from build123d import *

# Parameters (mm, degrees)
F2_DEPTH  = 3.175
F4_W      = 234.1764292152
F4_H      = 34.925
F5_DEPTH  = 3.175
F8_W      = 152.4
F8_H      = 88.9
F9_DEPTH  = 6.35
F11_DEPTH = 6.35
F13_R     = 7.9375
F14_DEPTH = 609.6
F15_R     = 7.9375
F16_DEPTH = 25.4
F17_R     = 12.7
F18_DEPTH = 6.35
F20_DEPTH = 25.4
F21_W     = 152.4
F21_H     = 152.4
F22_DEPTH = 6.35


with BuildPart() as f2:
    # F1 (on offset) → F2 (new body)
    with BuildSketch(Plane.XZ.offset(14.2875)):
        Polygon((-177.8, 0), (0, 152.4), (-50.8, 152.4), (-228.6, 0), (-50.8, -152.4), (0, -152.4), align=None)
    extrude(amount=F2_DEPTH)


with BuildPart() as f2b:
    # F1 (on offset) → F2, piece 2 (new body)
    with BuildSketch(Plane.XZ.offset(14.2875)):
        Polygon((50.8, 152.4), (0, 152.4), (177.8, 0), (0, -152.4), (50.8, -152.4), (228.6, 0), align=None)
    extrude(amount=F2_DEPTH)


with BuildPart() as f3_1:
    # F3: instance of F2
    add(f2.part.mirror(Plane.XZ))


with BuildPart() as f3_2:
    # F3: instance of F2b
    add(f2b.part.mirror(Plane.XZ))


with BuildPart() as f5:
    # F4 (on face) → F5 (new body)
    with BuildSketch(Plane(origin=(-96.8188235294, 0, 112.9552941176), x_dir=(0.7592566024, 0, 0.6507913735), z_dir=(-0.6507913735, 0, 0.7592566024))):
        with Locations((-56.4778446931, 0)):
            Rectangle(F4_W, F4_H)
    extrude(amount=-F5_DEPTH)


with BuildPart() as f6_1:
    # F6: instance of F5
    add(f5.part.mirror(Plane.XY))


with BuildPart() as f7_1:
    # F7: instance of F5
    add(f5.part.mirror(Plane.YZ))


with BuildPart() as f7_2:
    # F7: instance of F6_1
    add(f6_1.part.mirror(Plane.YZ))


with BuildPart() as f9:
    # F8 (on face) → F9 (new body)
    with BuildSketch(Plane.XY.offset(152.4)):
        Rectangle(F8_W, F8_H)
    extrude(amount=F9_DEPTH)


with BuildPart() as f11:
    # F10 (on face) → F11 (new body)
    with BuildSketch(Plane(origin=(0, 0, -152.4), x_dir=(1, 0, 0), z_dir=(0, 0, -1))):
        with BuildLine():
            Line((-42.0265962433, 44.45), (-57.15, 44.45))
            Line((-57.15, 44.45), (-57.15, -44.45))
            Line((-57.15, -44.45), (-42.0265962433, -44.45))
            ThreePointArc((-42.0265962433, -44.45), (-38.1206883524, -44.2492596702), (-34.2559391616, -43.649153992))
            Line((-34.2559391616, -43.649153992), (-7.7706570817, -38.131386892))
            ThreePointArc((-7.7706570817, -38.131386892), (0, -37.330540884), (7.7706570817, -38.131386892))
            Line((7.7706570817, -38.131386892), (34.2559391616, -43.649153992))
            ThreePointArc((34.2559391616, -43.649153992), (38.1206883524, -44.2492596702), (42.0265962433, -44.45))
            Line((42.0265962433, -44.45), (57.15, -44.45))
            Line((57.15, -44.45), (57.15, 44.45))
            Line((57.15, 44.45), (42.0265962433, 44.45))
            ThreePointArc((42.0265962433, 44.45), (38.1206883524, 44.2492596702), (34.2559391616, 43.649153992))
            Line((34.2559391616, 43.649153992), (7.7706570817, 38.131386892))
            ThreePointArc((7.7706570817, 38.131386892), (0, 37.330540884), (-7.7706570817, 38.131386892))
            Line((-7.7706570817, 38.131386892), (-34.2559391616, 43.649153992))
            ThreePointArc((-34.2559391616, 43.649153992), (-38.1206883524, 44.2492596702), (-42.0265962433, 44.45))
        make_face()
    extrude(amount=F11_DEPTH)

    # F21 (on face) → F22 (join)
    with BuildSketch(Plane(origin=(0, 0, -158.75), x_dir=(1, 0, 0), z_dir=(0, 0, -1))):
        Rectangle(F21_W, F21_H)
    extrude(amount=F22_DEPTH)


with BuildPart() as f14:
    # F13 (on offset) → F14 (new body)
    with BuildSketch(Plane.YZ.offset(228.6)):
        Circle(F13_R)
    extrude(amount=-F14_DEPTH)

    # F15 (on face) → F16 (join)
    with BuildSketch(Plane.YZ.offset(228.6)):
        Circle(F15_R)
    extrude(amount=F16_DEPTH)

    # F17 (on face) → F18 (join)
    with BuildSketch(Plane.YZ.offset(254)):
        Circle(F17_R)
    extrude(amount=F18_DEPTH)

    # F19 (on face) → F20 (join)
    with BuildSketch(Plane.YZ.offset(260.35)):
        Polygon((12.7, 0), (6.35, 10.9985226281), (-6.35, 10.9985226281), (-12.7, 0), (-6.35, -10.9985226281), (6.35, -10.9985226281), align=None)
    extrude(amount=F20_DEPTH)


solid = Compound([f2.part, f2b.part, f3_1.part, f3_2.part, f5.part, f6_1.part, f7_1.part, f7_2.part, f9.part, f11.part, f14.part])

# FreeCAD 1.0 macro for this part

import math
import FreeCAD as App
import Part
import Sketcher

V = App.Vector
Q = App.Units.Quantity

doc = App.newDocument("Part")
params = doc.addObject("Spreadsheet::Sheet", "Params")
for row, (alias, value) in enumerate([
    ("sketch1_width", "2 in"),
    ("pad1_length", "0.125 in"),
    ("sketch2_width", "2 in"),
    ("pad2_length", "0.125 in"),
    ("sketch3_height", "1.375 in"),
    ("pad3_length", "0.125 in"),
    ("sketch4_width", "6 in"),
    ("sketch4_height", "3.5 in"),
    ("pad4_length", "0.25 in"),
    ("sketch5_radius", "1.5 in"),
    ("sketch5_height", "3.5 in"),
    ("pad5_length", "0.25 in"),
    ("sketch6_width", "6 in"),
    ("pad6_length", "0.25 in"),
    ("sketch7_diameter", "0.625 in"),
    ("pad7_length", "24 in"),
    ("sketch8_diameter", "0.625 in"),
    ("pad8_length", "1 in"),
    ("sketch9_diameter", "1 in"),
    ("pad9_length", "0.25 in"),
    ("sketch10_width", "0.5 in"),
    ("pad10_length", "1 in"),
], start=1):
    params.set(f"A{row}", alias)
    params.set(f"B{row}", "=" + value)
    params.setAlias(f"B{row}", alias)

body = doc.addObject("PartDesign::Body", "Body")

# Sketch on XZ plane
sketch1 = doc.addObject("Sketcher::SketchObject", "Sketch")
body.addObject(sketch1)
sketch1.AttachmentSupport = (doc.XZ_Plane, [""])
sketch1.MapMode = "FlatFace"
sketch1.AttachmentOffset = App.Placement(V(0, 0, 0.5625 * 25.4), App.Rotation())
sketch1.addGeometry([
    Part.LineSegment(V(-177.8, 0, 0), V(0, 152.4, 0)),  # 0
    Part.LineSegment(V(0, 152.4, 0), V(-50.8, 152.4, 0)),  # 1
    Part.LineSegment(V(-50.8, 152.4, 0), V(-228.6, 0, 0)),  # 2
    Part.LineSegment(V(-228.6, 0, 0), V(-50.8, -152.4, 0)),  # 3
    Part.LineSegment(V(-50.8, -152.4, 0), V(0, -152.4, 0)),  # 4
    Part.LineSegment(V(0, -152.4, 0), V(-177.8, 0, 0)),  # 5
], False)
sketch1.addConstraint([
    Sketcher.Constraint("Coincident", 0, 2, 1, 1),
    Sketcher.Constraint("Coincident", 1, 2, 2, 1),
    Sketcher.Constraint("Coincident", 2, 2, 3, 1),
    Sketcher.Constraint("Coincident", 3, 2, 4, 1),
    Sketcher.Constraint("Coincident", 4, 2, 5, 1),
    Sketcher.Constraint("Coincident", 5, 2, 0, 1),
    Sketcher.Constraint("Horizontal", 1),
    Sketcher.Constraint("Horizontal", 4),
    Sketcher.Constraint("Symmetric", 0, 2, 4, 2, -1, 1),
    Sketcher.Constraint("PointOnObject", 0, 2, -2),
    Sketcher.Constraint("PointOnObject", 2, 2, -1),
    Sketcher.Constraint("PointOnObject", 5, 2, -1),
    Sketcher.Constraint("Parallel", 0, 2),
    Sketcher.Constraint("Parallel", 3, 5),
    Sketcher.Constraint("DistanceX", 1, 2, 1, 1, Q("2 in")),
    Sketcher.Constraint("DistanceY", -1, 1, 0, 2, Q("6 in")),
    Sketcher.Constraint("DistanceX", 2, 2, -1, 1, Q("9 in")),
])
sketch1.setExpression("Constraints[14]", "Params.sketch1_width")
pad1 = doc.addObject("PartDesign::Pad", "Pad")
body.addObject(pad1)
pad1.Profile = sketch1
pad1.setExpression("Length", "Params.pad1_length")
body2 = doc.addObject("PartDesign::Body", "Body001")

# Sketch on XZ plane
sketch2 = doc.addObject("Sketcher::SketchObject", "Sketch001")
body2.addObject(sketch2)
sketch2.AttachmentSupport = (doc.getObject("XZ_Plane001"), [""])
sketch2.MapMode = "FlatFace"
sketch2.AttachmentOffset = App.Placement(V(0, 0, 0.5625 * 25.4), App.Rotation())
sketch2.addGeometry([
    Part.LineSegment(V(50.8, 152.4, 0), V(0, 152.4, 0)),  # 0
    Part.LineSegment(V(0, 152.4, 0), V(177.8, 0, 0)),  # 1
    Part.LineSegment(V(177.8, 0, 0), V(0, -152.4, 0)),  # 2
    Part.LineSegment(V(0, -152.4, 0), V(50.8, -152.4, 0)),  # 3
    Part.LineSegment(V(50.8, -152.4, 0), V(228.6, 0, 0)),  # 4
    Part.LineSegment(V(228.6, 0, 0), V(50.8, 152.4, 0)),  # 5
], False)
sketch2.addConstraint([
    Sketcher.Constraint("Coincident", 0, 2, 1, 1),
    Sketcher.Constraint("Coincident", 1, 2, 2, 1),
    Sketcher.Constraint("Coincident", 2, 2, 3, 1),
    Sketcher.Constraint("Coincident", 3, 2, 4, 1),
    Sketcher.Constraint("Coincident", 4, 2, 5, 1),
    Sketcher.Constraint("Coincident", 5, 2, 0, 1),
    Sketcher.Constraint("Horizontal", 0),
    Sketcher.Constraint("Horizontal", 3),
    Sketcher.Constraint("Symmetric", 0, 2, 2, 2, -1, 1),
    Sketcher.Constraint("PointOnObject", 0, 2, -2),
    Sketcher.Constraint("PointOnObject", 1, 2, -1),
    Sketcher.Constraint("PointOnObject", 4, 2, -1),
    Sketcher.Constraint("Parallel", 2, 4),
    Sketcher.Constraint("Parallel", 1, 5),
    Sketcher.Constraint("DistanceX", 0, 2, 0, 1, Q("2 in")),
    Sketcher.Constraint("DistanceY", -1, 1, 0, 2, Q("6 in")),
    Sketcher.Constraint("DistanceX", -1, 1, 1, 2, Q("7 in")),
])
sketch2.setExpression("Constraints[14]", "Params.sketch2_width")
pad2 = doc.addObject("PartDesign::Pad", "Pad001")
body2.addObject(pad2)
pad2.Profile = sketch2
pad2.setExpression("Length", "Params.pad2_length")
body3 = doc.addObject("PartDesign::Body", "Body002")
doc.recompute()

mirroring = doc.addObject("Part::Mirroring", "Mirroring")
mirroring.Source = body
mirroring.Base = V(0, 0, 0)
mirroring.Normal = V(0, -1, 0)
body3.BaseFeature = mirroring
doc.recompute()
body4 = doc.addObject("PartDesign::Body", "Body003")
doc.recompute()

mirroring2 = doc.addObject("Part::Mirroring", "Mirroring001")
mirroring2.Source = body2
mirroring2.Base = V(0, 0, 0)
mirroring2.Normal = V(0, -1, 0)
body4.BaseFeature = mirroring2
doc.recompute()
body5 = doc.addObject("PartDesign::Body", "Body004")

# Sketch on an angled plane
sketch3 = doc.addObject("Sketcher::SketchObject", "Sketch002")
body5.addObject(sketch3)
sketch3.Placement = App.Placement(V(-96.818824, 0, 112.955294), App.Rotation(V(0.759256602, 0, 0.650791373), V(0, 0.999999999, 0), V(-0.650791373, 0, 0.759256602), "ZXY"))
sketch3.addGeometry([
    Part.LineSegment(V(-173.566059, 17.4625, 0), V(-173.566059, -17.4625, 0)),
    Part.LineSegment(V(-173.566059, -17.4625, 0), V(60.61037, -17.4625, 0)),
    Part.LineSegment(V(60.61037, -17.4625, 0), V(60.61037, 17.4625, 0)),
    Part.LineSegment(V(60.61037, 17.4625, 0), V(-173.566059, 17.4625, 0)),
], False)
sketch3.addConstraint([
    Sketcher.Constraint("Coincident", 0, 2, 1, 1),
    Sketcher.Constraint("Coincident", 1, 2, 2, 1),
    Sketcher.Constraint("Coincident", 2, 2, 3, 1),
    Sketcher.Constraint("Coincident", 3, 2, 0, 1),
    Sketcher.Constraint("Vertical", 0),
    Sketcher.Constraint("Horizontal", 1),
    Sketcher.Constraint("Vertical", 2),
    Sketcher.Constraint("Horizontal", 3),
    Sketcher.Constraint("DistanceY", 0, 2, 0, 1, Q("1.375 in")),
    Sketcher.Constraint("DistanceY", 0, 2, -1, 1, Q("0.6875 in")),
    Sketcher.Constraint("DistanceX", 1, 1, 1, 2, Q("234.176429 mm")),
    Sketcher.Constraint("DistanceX", 0, 2, -1, 1, Q("173.566059 mm")),
])
sketch3.setExpression("Constraints[8]", "Params.sketch3_height")
pad3 = doc.addObject("PartDesign::Pad", "Pad002")
body5.addObject(pad3)
pad3.Profile = sketch3
pad3.setExpression("Length", "Params.pad3_length")
pad3.Reversed = True
body6 = doc.addObject("PartDesign::Body", "Body005")
doc.recompute()

mirroring3 = doc.addObject("Part::Mirroring", "Mirroring002")
mirroring3.Source = body5
mirroring3.Base = V(0, 0, 0)
mirroring3.Normal = V(0, 0, 1)
body6.BaseFeature = mirroring3
doc.recompute()
body7 = doc.addObject("PartDesign::Body", "Body006")
doc.recompute()

mirroring4 = doc.addObject("Part::Mirroring", "Mirroring003")
mirroring4.Source = body5
mirroring4.Base = V(0, 0, 0)
mirroring4.Normal = V(1, 0, 0)
body7.BaseFeature = mirroring4
doc.recompute()
body8 = doc.addObject("PartDesign::Body", "Body007")
doc.recompute()

mirroring5 = doc.addObject("Part::Mirroring", "Mirroring004")
mirroring5.Source = body6
mirroring5.Base = V(0, 0, 0)
mirroring5.Normal = V(1, 0, 0)
body8.BaseFeature = mirroring5
doc.recompute()
body9 = doc.addObject("PartDesign::Body", "Body008")

# Sketch on XY plane
sketch4 = doc.addObject("Sketcher::SketchObject", "Sketch003")
body9.addObject(sketch4)
sketch4.AttachmentSupport = (doc.getObject("XY_Plane008"), [""])
sketch4.MapMode = "FlatFace"
sketch4.AttachmentOffset = App.Placement(V(0, 0, 6 * 25.4), App.Rotation())
sketch4.addGeometry([
    Part.LineSegment(V(-76.2, 44.45, 0), V(-76.2, -44.45, 0)),
    Part.LineSegment(V(-76.2, -44.45, 0), V(76.2, -44.45, 0)),
    Part.LineSegment(V(76.2, -44.45, 0), V(76.2, 44.45, 0)),
    Part.LineSegment(V(76.2, 44.45, 0), V(-76.2, 44.45, 0)),
], False)
sketch4.addConstraint([
    Sketcher.Constraint("Coincident", 0, 2, 1, 1),
    Sketcher.Constraint("Coincident", 1, 2, 2, 1),
    Sketcher.Constraint("Coincident", 2, 2, 3, 1),
    Sketcher.Constraint("Coincident", 3, 2, 0, 1),
    Sketcher.Constraint("Vertical", 0),
    Sketcher.Constraint("Horizontal", 1),
    Sketcher.Constraint("Vertical", 2),
    Sketcher.Constraint("Horizontal", 3),
    Sketcher.Constraint("Symmetric", 0, 2, 2, 2, -1, 1),
    Sketcher.Constraint("DistanceX", 1, 1, 1, 2, Q("6 in")),
    Sketcher.Constraint("DistanceY", 0, 2, 0, 1, Q("3.5 in")),
])
sketch4.setExpression("Constraints[9]", "Params.sketch4_width")
sketch4.setExpression("Constraints[10]", "Params.sketch4_height")
pad4 = doc.addObject("PartDesign::Pad", "Pad003")
body9.addObject(pad4)
pad4.Profile = sketch4
pad4.setExpression("Length", "Params.pad4_length")
body10 = doc.addObject("PartDesign::Body", "Body009")

# Sketch on XY plane
sketch5 = doc.addObject("Sketcher::SketchObject", "Sketch004")
body10.addObject(sketch5)
sketch5.AttachmentSupport = (doc.getObject("XY_Plane009"), [""])
sketch5.MapMode = "FlatFace"
sketch5.AttachmentOffset = App.Placement(V(0, 0, -6 * 25.4), App.Rotation())
sketch5.addGeometry([
    Part.LineSegment(V(-42.026596, -44.45, 0), V(-57.15, -44.45, 0)),  # 0
    Part.LineSegment(V(-57.15, -44.45, 0), V(-57.15, 44.45, 0)),  # 1
    Part.LineSegment(V(-57.15, 44.45, 0), V(-42.026596, 44.45, 0)),  # 2
    Part.ArcOfCircle(Part.Circle(V(-42.026596, 6.35, 0), V(0, 0, 1), 38.1), math.radians(78.231711), math.radians(90)),  # 3
    Part.LineSegment(V(-34.255939, 43.649154, 0), V(-7.770657, 38.131387, 0)),  # 4
    Part.ArcOfCircle(Part.Circle(V(0, 75.430541, 0), V(0, 0, 1), 38.1), math.radians(-101.768289), math.radians(-78.231711)),  # 5
    Part.LineSegment(V(7.770657, 38.131387, 0), V(34.255939, 43.649154, 0)),  # 6
    Part.ArcOfCircle(Part.Circle(V(42.026596, 6.35, 0), V(0, 0, 1), 38.1), math.radians(90), math.radians(101.768289)),  # 7
    Part.LineSegment(V(42.026596, 44.45, 0), V(57.15, 44.45, 0)),  # 8
    Part.LineSegment(V(57.15, 44.45, 0), V(57.15, -44.45, 0)),  # 9
    Part.LineSegment(V(57.15, -44.45, 0), V(42.026596, -44.45, 0)),  # 10
    Part.ArcOfCircle(Part.Circle(V(42.026596, -6.35, 0), V(0, 0, 1), 38.1), math.radians(-101.768289), math.radians(-90)),  # 11
    Part.LineSegment(V(34.255939, -43.649154, 0), V(7.770657, -38.131387, 0)),  # 12
    Part.ArcOfCircle(Part.Circle(V(0, -75.430541, 0), V(0, 0, 1), 38.1), math.radians(78.231711), math.radians(101.768289)),  # 13
    Part.LineSegment(V(-7.770657, -38.131387, 0), V(-34.255939, -43.649154, 0)),  # 14
    Part.ArcOfCircle(Part.Circle(V(-42.026596, -6.35, 0), V(0, 0, 1), 38.1), math.radians(-90), math.radians(-78.231711)),  # 15
], False)
sketch5.addConstraint([
    Sketcher.Constraint("Coincident", 0, 2, 1, 1),
    Sketcher.Constraint("Coincident", 1, 2, 2, 1),
    Sketcher.Constraint("Tangent", 2, 2, 3, 2),
    Sketcher.Constraint("Tangent", 3, 1, 4, 1),
    Sketcher.Constraint("Tangent", 4, 2, 5, 1),
    Sketcher.Constraint("Tangent", 5, 2, 6, 1),
    Sketcher.Constraint("Tangent", 6, 2, 7, 2),
    Sketcher.Constraint("Tangent", 7, 1, 8, 1),
    Sketcher.Constraint("Coincident", 8, 2, 9, 1),
    Sketcher.Constraint("Coincident", 9, 2, 10, 1),
    Sketcher.Constraint("Tangent", 10, 2, 11, 2),
    Sketcher.Constraint("Tangent", 11, 1, 12, 1),
    Sketcher.Constraint("Tangent", 12, 2, 13, 1),
    Sketcher.Constraint("Tangent", 13, 2, 14, 1),
    Sketcher.Constraint("Tangent", 14, 2, 15, 2),
    Sketcher.Constraint("Tangent", 15, 1, 0, 1),
    Sketcher.Constraint("Horizontal", 0),
    Sketcher.Constraint("Vertical", 1),
    Sketcher.Constraint("Horizontal", 2),
    Sketcher.Constraint("Horizontal", 8),
    Sketcher.Constraint("Vertical", 9),
    Sketcher.Constraint("Horizontal", 10),
    Sketcher.Constraint("Equal", 3, 5),
    Sketcher.Constraint("Equal", 5, 7),
    Sketcher.Constraint("Equal", 7, 11),
    Sketcher.Constraint("Equal", 11, 13),
    Sketcher.Constraint("Equal", 13, 15),
    Sketcher.Constraint("Symmetric", 3, 3, 11, 3, -1, 1),
    Sketcher.Constraint("Symmetric", 5, 3, 13, 3, -1, 1),
    Sketcher.Constraint("Symmetric", 7, 3, 15, 3, -1, 1),
    Sketcher.Constraint("Symmetric", 3, 3, 7, 3, -2),
    Sketcher.Constraint("PointOnObject", 5, 3, -2),
    Sketcher.Constraint("Equal", 2, 8),
    Sketcher.Constraint("Radius", 3, Q("1.5 in")),
    Sketcher.Constraint("DistanceY", 1, 1, 1, 2, Q("3.5 in")),
    Sketcher.Constraint("DistanceX", 0, 2, -1, 1, Q("2.25 in")),
    Sketcher.Constraint("DistanceX", 0, 2, 0, 1, Q("15.123404 mm")),
    Sketcher.Constraint("DistanceY", -1, 1, 5, 3, Q("75.430541 mm")),
])
sketch5.setExpression("Constraints[33]", "Params.sketch5_radius")
sketch5.setExpression("Constraints[34]", "Params.sketch5_height")
pad5 = doc.addObject("PartDesign::Pad", "Pad004")
body10.addObject(pad5)
pad5.Profile = sketch5
pad5.setExpression("Length", "Params.pad5_length")
pad5.Reversed = True

# Sketch on XY plane
sketch6 = doc.addObject("Sketcher::SketchObject", "Sketch005")
body10.addObject(sketch6)
sketch6.AttachmentSupport = (doc.getObject("XY_Plane009"), [""])
sketch6.MapMode = "FlatFace"
sketch6.AttachmentOffset = App.Placement(V(0, 0, -6.25 * 25.4), App.Rotation())
sketch6.addGeometry([
    Part.LineSegment(V(-76.2, -76.2, 0), V(-76.2, 76.2, 0)),
    Part.LineSegment(V(-76.2, 76.2, 0), V(76.2, 76.2, 0)),
    Part.LineSegment(V(76.2, 76.2, 0), V(76.2, -76.2, 0)),
    Part.LineSegment(V(76.2, -76.2, 0), V(-76.2, -76.2, 0)),
], False)
sketch6.addConstraint([
    Sketcher.Constraint("Coincident", 0, 2, 1, 1),
    Sketcher.Constraint("Coincident", 1, 2, 2, 1),
    Sketcher.Constraint("Coincident", 2, 2, 3, 1),
    Sketcher.Constraint("Coincident", 3, 2, 0, 1),
    Sketcher.Constraint("Vertical", 0),
    Sketcher.Constraint("Horizontal", 1),
    Sketcher.Constraint("Vertical", 2),
    Sketcher.Constraint("Horizontal", 3),
    Sketcher.Constraint("Symmetric", 0, 2, 2, 2, -1, 1),
    Sketcher.Constraint("Equal", 3, 0),
    Sketcher.Constraint("DistanceX", 1, 1, 1, 2, Q("6 in")),
])
sketch6.setExpression("Constraints[10]", "Params.sketch6_width")
pad6 = doc.addObject("PartDesign::Pad", "Pad005")
body10.addObject(pad6)
pad6.Profile = sketch6
pad6.setExpression("Length", "Params.pad6_length")
pad6.Reversed = True
body11 = doc.addObject("PartDesign::Body", "Body010")

# Sketch on YZ plane
sketch7 = doc.addObject("Sketcher::SketchObject", "Sketch006")
body11.addObject(sketch7)
sketch7.AttachmentSupport = (doc.getObject("YZ_Plane010"), [""])
sketch7.MapMode = "FlatFace"
sketch7.AttachmentOffset = App.Placement(V(0, 0, 9 * 25.4), App.Rotation())
sketch7.addGeometry(Part.Circle(V(0, 0, 0), V(0, 0, 1), 7.9375), False)
sketch7.addConstraint([
    Sketcher.Constraint("Coincident", 0, 3, -1, 1),
    Sketcher.Constraint("Diameter", 0, Q("0.625 in")),
])
sketch7.setExpression("Constraints[1]", "Params.sketch7_diameter")
pad7 = doc.addObject("PartDesign::Pad", "Pad006")
body11.addObject(pad7)
pad7.Profile = sketch7
pad7.setExpression("Length", "Params.pad7_length")
pad7.Reversed = True

# Sketch on YZ plane
sketch8 = doc.addObject("Sketcher::SketchObject", "Sketch007")
body11.addObject(sketch8)
sketch8.AttachmentSupport = (doc.getObject("YZ_Plane010"), [""])
sketch8.MapMode = "FlatFace"
sketch8.AttachmentOffset = App.Placement(V(0, 0, 9 * 25.4), App.Rotation())
sketch8.addGeometry(Part.Circle(V(0, 0, 0), V(0, 0, 1), 7.9375), False)
sketch8.addConstraint([
    Sketcher.Constraint("Coincident", 0, 3, -1, 1),
    Sketcher.Constraint("Diameter", 0, Q("0.625 in")),
])
sketch8.setExpression("Constraints[1]", "Params.sketch8_diameter")
pad8 = doc.addObject("PartDesign::Pad", "Pad007")
body11.addObject(pad8)
pad8.Profile = sketch8
pad8.setExpression("Length", "Params.pad8_length")

# Sketch on YZ plane
sketch9 = doc.addObject("Sketcher::SketchObject", "Sketch008")
body11.addObject(sketch9)
sketch9.AttachmentSupport = (doc.getObject("YZ_Plane010"), [""])
sketch9.MapMode = "FlatFace"
sketch9.AttachmentOffset = App.Placement(V(0, 0, 10 * 25.4), App.Rotation())
sketch9.addGeometry(Part.Circle(V(0, 0, 0), V(0, 0, 1), 12.7), False)
sketch9.addConstraint([
    Sketcher.Constraint("Coincident", 0, 3, -1, 1),
    Sketcher.Constraint("Diameter", 0, Q("1 in")),
])
sketch9.setExpression("Constraints[1]", "Params.sketch9_diameter")
pad9 = doc.addObject("PartDesign::Pad", "Pad008")
body11.addObject(pad9)
pad9.Profile = sketch9
pad9.setExpression("Length", "Params.pad9_length")

# Sketch on YZ plane
sketch10 = doc.addObject("Sketcher::SketchObject", "Sketch009")
body11.addObject(sketch10)
sketch10.AttachmentSupport = (doc.getObject("YZ_Plane010"), [""])
sketch10.MapMode = "FlatFace"
sketch10.AttachmentOffset = App.Placement(V(0, 0, 10.25 * 25.4), App.Rotation())
sketch10.addGeometry([
    Part.LineSegment(V(12.7, 0, 0), V(6.35, 10.998523, 0)),  # 0
    Part.LineSegment(V(6.35, 10.998523, 0), V(-6.35, 10.998523, 0)),  # 1
    Part.LineSegment(V(-6.35, 10.998523, 0), V(-12.7, 0, 0)),  # 2
    Part.LineSegment(V(-12.7, 0, 0), V(-6.35, -10.998523, 0)),  # 3
    Part.LineSegment(V(-6.35, -10.998523, 0), V(6.35, -10.998523, 0)),  # 4
    Part.LineSegment(V(6.35, -10.998523, 0), V(12.7, 0, 0)),  # 5
], False)
sketch10.addConstraint([
    Sketcher.Constraint("Coincident", 0, 2, 1, 1),
    Sketcher.Constraint("Coincident", 1, 2, 2, 1),
    Sketcher.Constraint("Coincident", 2, 2, 3, 1),
    Sketcher.Constraint("Coincident", 3, 2, 4, 1),
    Sketcher.Constraint("Coincident", 4, 2, 5, 1),
    Sketcher.Constraint("Coincident", 5, 2, 0, 1),
    Sketcher.Constraint("Horizontal", 1),
    Sketcher.Constraint("Horizontal", 4),
    Sketcher.Constraint("Symmetric", 0, 2, 3, 2, -1, 1),
    Sketcher.Constraint("Symmetric", 2, 2, 5, 2, -1, 1),
    Sketcher.Constraint("PointOnObject", 2, 2, -1),
    Sketcher.Constraint("Parallel", 2, 5),
    Sketcher.Constraint("Vertical", 1, 2, 3, 2),
    Sketcher.Constraint("DistanceX", 1, 2, 1, 1, Q("0.5 in")),
    Sketcher.Constraint("Angle", 0, Q("120 deg")),
    Sketcher.Constraint("DistanceX", 2, 2, 5, 2, Q("1 in")),
])
sketch10.setExpression("Constraints[13]", "Params.sketch10_width")
pad10 = doc.addObject("PartDesign::Pad", "Pad009")
body11.addObject(pad10)
pad10.Profile = sketch10
pad10.setExpression("Length", "Params.pad10_length")
mirroring.Visibility = False
mirroring2.Visibility = False
mirroring3.Visibility = False
mirroring4.Visibility = False
mirroring5.Visibility = False

doc.recompute()
